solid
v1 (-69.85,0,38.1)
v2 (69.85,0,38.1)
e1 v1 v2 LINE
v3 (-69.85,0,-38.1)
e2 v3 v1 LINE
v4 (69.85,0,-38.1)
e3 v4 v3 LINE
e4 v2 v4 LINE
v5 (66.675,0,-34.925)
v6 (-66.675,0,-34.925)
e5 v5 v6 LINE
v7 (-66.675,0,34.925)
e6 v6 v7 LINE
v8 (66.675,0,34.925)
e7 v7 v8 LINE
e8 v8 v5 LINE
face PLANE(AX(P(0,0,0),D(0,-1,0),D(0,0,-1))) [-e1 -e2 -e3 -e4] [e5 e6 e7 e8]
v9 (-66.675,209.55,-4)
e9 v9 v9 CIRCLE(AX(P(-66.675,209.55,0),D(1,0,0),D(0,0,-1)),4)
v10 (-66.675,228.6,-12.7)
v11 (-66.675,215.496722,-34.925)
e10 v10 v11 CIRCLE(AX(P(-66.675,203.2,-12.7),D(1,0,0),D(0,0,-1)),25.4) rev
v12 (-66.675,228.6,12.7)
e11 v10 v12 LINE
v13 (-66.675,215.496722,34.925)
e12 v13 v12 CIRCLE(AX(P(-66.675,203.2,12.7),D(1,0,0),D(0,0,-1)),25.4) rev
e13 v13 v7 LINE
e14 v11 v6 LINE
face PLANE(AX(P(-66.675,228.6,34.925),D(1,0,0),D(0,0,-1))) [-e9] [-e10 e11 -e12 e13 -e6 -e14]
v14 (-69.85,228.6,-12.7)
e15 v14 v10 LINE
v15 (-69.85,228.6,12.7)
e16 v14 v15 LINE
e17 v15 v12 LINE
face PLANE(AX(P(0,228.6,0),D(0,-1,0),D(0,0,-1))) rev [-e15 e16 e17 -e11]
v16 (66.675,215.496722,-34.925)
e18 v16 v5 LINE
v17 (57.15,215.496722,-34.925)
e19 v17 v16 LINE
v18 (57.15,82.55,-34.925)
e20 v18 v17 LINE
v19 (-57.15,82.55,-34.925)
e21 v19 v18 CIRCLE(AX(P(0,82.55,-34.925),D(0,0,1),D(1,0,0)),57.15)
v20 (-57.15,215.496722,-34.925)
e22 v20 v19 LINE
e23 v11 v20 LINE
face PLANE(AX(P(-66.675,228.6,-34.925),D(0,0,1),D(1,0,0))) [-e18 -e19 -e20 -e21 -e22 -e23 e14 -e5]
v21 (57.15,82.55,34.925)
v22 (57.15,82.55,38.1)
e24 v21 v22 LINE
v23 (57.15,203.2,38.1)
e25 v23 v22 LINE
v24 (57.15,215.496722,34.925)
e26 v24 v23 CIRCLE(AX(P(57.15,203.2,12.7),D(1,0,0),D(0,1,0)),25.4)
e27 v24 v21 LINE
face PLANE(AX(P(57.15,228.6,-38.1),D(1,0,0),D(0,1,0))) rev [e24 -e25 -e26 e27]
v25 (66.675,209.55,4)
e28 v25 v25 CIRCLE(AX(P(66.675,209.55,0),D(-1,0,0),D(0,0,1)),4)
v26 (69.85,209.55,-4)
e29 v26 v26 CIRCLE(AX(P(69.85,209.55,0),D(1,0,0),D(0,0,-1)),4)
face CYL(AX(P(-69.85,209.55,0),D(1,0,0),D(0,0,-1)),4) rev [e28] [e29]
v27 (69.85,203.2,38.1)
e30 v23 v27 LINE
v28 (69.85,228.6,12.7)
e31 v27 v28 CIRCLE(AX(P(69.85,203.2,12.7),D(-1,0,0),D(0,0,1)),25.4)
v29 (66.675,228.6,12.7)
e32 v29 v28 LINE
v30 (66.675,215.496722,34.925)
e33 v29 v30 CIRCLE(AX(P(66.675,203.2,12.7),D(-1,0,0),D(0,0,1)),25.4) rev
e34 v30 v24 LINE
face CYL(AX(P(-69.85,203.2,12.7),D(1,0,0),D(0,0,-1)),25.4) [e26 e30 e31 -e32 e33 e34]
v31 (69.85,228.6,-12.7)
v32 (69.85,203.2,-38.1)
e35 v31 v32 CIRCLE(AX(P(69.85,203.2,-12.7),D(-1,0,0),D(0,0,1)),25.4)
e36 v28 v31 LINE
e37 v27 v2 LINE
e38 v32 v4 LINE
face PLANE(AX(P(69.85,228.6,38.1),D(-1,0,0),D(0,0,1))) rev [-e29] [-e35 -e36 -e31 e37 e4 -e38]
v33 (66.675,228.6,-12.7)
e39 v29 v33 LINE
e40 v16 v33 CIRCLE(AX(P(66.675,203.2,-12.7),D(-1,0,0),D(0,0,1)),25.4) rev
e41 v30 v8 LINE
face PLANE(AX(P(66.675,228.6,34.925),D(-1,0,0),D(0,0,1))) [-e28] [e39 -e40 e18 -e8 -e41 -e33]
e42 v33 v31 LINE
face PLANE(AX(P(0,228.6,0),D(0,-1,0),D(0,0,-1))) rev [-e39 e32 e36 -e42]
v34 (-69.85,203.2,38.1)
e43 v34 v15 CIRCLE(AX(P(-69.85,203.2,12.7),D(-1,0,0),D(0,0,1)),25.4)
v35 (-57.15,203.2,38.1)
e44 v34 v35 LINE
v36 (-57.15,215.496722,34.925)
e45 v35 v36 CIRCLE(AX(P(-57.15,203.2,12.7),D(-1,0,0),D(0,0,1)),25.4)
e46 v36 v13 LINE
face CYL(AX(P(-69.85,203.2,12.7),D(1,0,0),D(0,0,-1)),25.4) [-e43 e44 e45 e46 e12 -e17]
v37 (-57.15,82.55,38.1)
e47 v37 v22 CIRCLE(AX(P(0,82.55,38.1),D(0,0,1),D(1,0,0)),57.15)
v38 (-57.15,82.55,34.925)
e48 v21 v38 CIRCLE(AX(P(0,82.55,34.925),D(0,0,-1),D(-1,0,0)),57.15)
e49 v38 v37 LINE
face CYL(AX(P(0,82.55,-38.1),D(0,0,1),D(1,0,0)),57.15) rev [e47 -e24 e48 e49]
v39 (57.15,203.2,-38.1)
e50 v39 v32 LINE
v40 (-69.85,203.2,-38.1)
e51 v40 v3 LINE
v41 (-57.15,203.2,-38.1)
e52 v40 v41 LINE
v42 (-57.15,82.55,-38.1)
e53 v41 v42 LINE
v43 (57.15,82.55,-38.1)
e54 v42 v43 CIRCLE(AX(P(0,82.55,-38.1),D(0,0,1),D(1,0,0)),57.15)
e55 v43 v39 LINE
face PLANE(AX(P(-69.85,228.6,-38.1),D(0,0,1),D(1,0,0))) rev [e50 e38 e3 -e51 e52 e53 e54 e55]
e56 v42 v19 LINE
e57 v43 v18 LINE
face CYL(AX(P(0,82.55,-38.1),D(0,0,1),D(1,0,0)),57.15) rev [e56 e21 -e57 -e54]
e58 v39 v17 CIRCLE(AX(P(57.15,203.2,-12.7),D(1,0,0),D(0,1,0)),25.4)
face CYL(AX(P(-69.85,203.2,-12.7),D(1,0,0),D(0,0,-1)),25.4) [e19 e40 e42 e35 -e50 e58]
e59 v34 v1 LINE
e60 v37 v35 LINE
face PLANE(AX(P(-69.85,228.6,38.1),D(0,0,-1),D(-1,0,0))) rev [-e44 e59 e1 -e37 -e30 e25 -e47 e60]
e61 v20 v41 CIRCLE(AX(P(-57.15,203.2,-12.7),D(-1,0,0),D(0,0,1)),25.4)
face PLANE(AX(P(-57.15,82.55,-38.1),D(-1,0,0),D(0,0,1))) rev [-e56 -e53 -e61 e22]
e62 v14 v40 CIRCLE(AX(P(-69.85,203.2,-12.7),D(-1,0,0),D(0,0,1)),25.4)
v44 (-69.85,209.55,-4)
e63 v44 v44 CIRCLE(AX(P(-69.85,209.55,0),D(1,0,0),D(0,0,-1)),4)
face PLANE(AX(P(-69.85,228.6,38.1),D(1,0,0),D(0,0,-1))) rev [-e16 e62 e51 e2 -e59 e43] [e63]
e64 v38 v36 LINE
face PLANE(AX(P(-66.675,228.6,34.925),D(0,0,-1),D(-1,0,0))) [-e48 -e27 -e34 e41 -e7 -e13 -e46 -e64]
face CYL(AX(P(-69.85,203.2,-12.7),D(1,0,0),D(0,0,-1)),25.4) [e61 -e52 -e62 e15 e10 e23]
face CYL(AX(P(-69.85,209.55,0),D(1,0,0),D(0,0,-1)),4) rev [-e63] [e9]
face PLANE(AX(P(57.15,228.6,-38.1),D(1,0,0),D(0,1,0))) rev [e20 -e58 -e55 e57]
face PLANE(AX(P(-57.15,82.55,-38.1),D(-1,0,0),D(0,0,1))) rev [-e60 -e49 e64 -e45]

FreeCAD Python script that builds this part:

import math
import FreeCAD as App
import Part
import Sketcher
Q = App.Units.Quantity

doc = App.newDocument("Part")
body = doc.addObject("PartDesign::Body", "Body")

# Sketch on XZ plane
sketch1 = doc.addObject("Sketcher::SketchObject", "Sketch")
body.addObject(sketch1)
sketch1.AttachmentSupport = (doc.XZ_Plane, [""])
sketch1.MapMode = "FlatFace"
sketch1.addGeometry(Part.LineSegment(App.Vector(-70, -38, 0), App.Vector(-70, 38, 0)), False)
sketch1.addGeometry(Part.LineSegment(App.Vector(-70, 38, 0), App.Vector(70, 38, 0)), False)
sketch1.addGeometry(Part.LineSegment(App.Vector(70, 38, 0), App.Vector(70, -38, 0)), False)
sketch1.addGeometry(Part.LineSegment(App.Vector(70, -38, 0), App.Vector(-70, -38, 0)), False)
sketch1.addGeometry(Part.LineSegment(App.Vector(67, 35, 0), App.Vector(-67, 35, 0)), False)
sketch1.addGeometry(Part.LineSegment(App.Vector(-67, 35, 0), App.Vector(-67, -35, 0)), False)
sketch1.addGeometry(Part.LineSegment(App.Vector(-67, -35, 0), App.Vector(67, -35, 0)), False)
sketch1.addGeometry(Part.LineSegment(App.Vector(67, -35, 0), App.Vector(67, 35, 0)), False)
sketch1.addConstraint(Sketcher.Constraint("Coincident", 0, 2, 1, 1))
sketch1.addConstraint(Sketcher.Constraint("Coincident", 1, 2, 2, 1))
sketch1.addConstraint(Sketcher.Constraint("Coincident", 2, 2, 3, 1))
sketch1.addConstraint(Sketcher.Constraint("Coincident", 3, 2, 0, 1))
sketch1.addConstraint(Sketcher.Constraint("Coincident", 4, 2, 5, 1))
sketch1.addConstraint(Sketcher.Constraint("Coincident", 5, 2, 6, 1))
sketch1.addConstraint(Sketcher.Constraint("Coincident", 6, 2, 7, 1))
sketch1.addConstraint(Sketcher.Constraint("Coincident", 7, 2, 4, 1))
sketch1.addConstraint(Sketcher.Constraint("Vertical", 0))
sketch1.addConstraint(Sketcher.Constraint("Horizontal", 1))
sketch1.addConstraint(Sketcher.Constraint("Vertical", 2))
sketch1.addConstraint(Sketcher.Constraint("Horizontal", 3))
sketch1.addConstraint(Sketcher.Constraint("Horizontal", 4))
sketch1.addConstraint(Sketcher.Constraint("Vertical", 5))
sketch1.addConstraint(Sketcher.Constraint("Horizontal", 6))
sketch1.addConstraint(Sketcher.Constraint("Vertical", 7))
sketch1.addConstraint(Sketcher.Constraint("Symmetric", 0, 2, 2, 2, -1, 1))
sketch1.addConstraint(Sketcher.Constraint("Symmetric", 4, 2, 6, 2, -1, 1))
sketch1.addConstraint(Sketcher.Constraint("DistanceY", 0, 1, 0, 2, Q("3 in")))
sketch1.addConstraint(Sketcher.Constraint("DistanceX", 1, 1, 1, 2, Q("5.5 in")))
sketch1.addConstraint(Sketcher.Constraint("DistanceX", 4, 2, 4, 1, Q("5.25 in")))
sketch1.addConstraint(Sketcher.Constraint("DistanceY", 5, 2, 5, 1, Q("2.75 in")))
pad1 = doc.addObject("PartDesign::Pad", "Pad")
body.addObject(pad1)
pad1.Profile = sketch1
pad1.Length = Q("9 in")
pad1.Reversed = True

# Sketch on YZ plane
sketch2 = doc.addObject("Sketcher::SketchObject", "Sketch001")
body.addObject(sketch2)
sketch2.AttachmentSupport = (doc.YZ_Plane, [""])
sketch2.MapMode = "FlatFace"
sketch2.AttachmentOffset = App.Placement(App.Vector(0, 0, 2.75 * 25.4), App.Rotation())
sketch2.addGeometry(Part.Circle(App.Vector(209.6, 0, 0), App.Vector(0, 0, 1), 4), False)
sketch2.addGeometry(Part.LineSegment(App.Vector(228.6, 38.1, 0), App.Vector(203.2, 38.1, 0)), False)
sketch2.addGeometry(Part.ArcOfCircle(Part.Circle(App.Vector(203.2, 12.7, 0), App.Vector(0, 0, 1), 25.4), math.radians(0), math.radians(90)), False)
sketch2.addGeometry(Part.LineSegment(App.Vector(228.6, 12.7, 0), App.Vector(228.6, 38.1, 0)), False)
sketch2.addGeometry(Part.LineSegment(App.Vector(228.6, -38.1, 0), App.Vector(228.6, -12.7, 0)), False)
sketch2.addGeometry(Part.ArcOfCircle(Part.Circle(App.Vector(203.2, -12.7, 0), App.Vector(0, 0, 1), 25.4), math.radians(-90), math.radians(0)), False)
sketch2.addGeometry(Part.LineSegment(App.Vector(203.2, -38.1, 0), App.Vector(228.6, -38.1, 0)), False)
sketch2.addConstraint(Sketcher.Constraint("Tangent", 1, 2, 2, 2))
sketch2.addConstraint(Sketcher.Constraint("Tangent", 2, 1, 3, 1))
sketch2.addConstraint(Sketcher.Constraint("Coincident", 3, 2, 1, 1))
sketch2.addConstraint(Sketcher.Constraint("Tangent", 4, 2, 5, 2))
sketch2.addConstraint(Sketcher.Constraint("Tangent", 5, 1, 6, 1))
sketch2.addConstraint(Sketcher.Constraint("Coincident", 6, 2, 4, 1))
sketch2.addConstraint(Sketcher.Constraint("Horizontal", 1))
sketch2.addConstraint(Sketcher.Constraint("Vertical", 3))
sketch2.addConstraint(Sketcher.Constraint("Vertical", 4))
sketch2.addConstraint(Sketcher.Constraint("Horizontal", 6))
sketch2.addConstraint(Sketcher.Constraint("Equal", 2, 5))
sketch2.addConstraint(Sketcher.Constraint("Symmetric", 2, 3, 5, 3, -1))
sketch2.addConstraint(Sketcher.Constraint("PointOnObject", 0, 3, -1))
sketch2.addConstraint(Sketcher.Constraint("Radius", 2, Q("1 in")))
sketch2.addConstraint(Sketcher.Constraint("DistanceX", -1, 1, 2, 3, Q("8 in")))
sketch2.addConstraint(Sketcher.Constraint("DistanceY", 5, 3, 2, 3, Q("1 in")))
sketch2.addConstraint(Sketcher.Constraint("Diameter", 0, 8.0))
sketch2.addConstraint(Sketcher.Constraint("DistanceX", -1, 1, 0, 3, Q("8.25 in")))
pocket1 = doc.addObject("PartDesign::Pocket", "Pocket")
body.addObject(pocket1)
pocket1.Profile = sketch2
pocket1.Type = "ThroughAll"

# Sketch on XY plane
sketch3 = doc.addObject("Sketcher::SketchObject", "Sketch002")
body.addObject(sketch3)
sketch3.AttachmentSupport = (doc.XY_Plane, [""])
sketch3.MapMode = "FlatFace"
sketch3.AttachmentOffset = App.Placement(App.Vector(0, 0, 1.5 * 25.4), App.Rotation())
sketch3.addGeometry(Part.LineSegment(App.Vector(-57, 229, 0), App.Vector(-57, 83, 0)), False)
sketch3.addGeometry(Part.ArcOfCircle(Part.Circle(App.Vector(0, 83, 0), App.Vector(0, 0, 1), 57), math.radians(180), math.radians(360)), False)
sketch3.addGeometry(Part.LineSegment(App.Vector(57, 83, 0), App.Vector(57, 229, 0)), False)
sketch3.addGeometry(Part.LineSegment(App.Vector(57, 229, 0), App.Vector(-57, 229, 0)), False)
sketch3.addConstraint(Sketcher.Constraint("Tangent", 0, 2, 1, 1))
sketch3.addConstraint(Sketcher.Constraint("Tangent", 1, 2, 2, 1))
sketch3.addConstraint(Sketcher.Constraint("Coincident", 2, 2, 3, 1))
sketch3.addConstraint(Sketcher.Constraint("Coincident", 3, 2, 0, 1))
sketch3.addConstraint(Sketcher.Constraint("Vertical", 0))
sketch3.addConstraint(Sketcher.Constraint("Vertical", 2))
sketch3.addConstraint(Sketcher.Constraint("Horizontal", 3))
sketch3.addConstraint(Sketcher.Constraint("PointOnObject", 1, 3, -2))
sketch3.addConstraint(Sketcher.Constraint("Radius", 1, Q("2.25 in")))
sketch3.addConstraint(Sketcher.Constraint("DistanceY", -1, 1, 2, 2, Q("9 in")))
sketch3.addConstraint(Sketcher.Constraint("DistanceY", 0, 2, 0, 1, Q("5.75 in")))
pocket2 = doc.addObject("PartDesign::Pocket", "Pocket001")
body.addObject(pocket2)
pocket2.Profile = sketch3
pocket2.Type = "ThroughAll"
pocket2.Midplane = True

doc.recompute()
